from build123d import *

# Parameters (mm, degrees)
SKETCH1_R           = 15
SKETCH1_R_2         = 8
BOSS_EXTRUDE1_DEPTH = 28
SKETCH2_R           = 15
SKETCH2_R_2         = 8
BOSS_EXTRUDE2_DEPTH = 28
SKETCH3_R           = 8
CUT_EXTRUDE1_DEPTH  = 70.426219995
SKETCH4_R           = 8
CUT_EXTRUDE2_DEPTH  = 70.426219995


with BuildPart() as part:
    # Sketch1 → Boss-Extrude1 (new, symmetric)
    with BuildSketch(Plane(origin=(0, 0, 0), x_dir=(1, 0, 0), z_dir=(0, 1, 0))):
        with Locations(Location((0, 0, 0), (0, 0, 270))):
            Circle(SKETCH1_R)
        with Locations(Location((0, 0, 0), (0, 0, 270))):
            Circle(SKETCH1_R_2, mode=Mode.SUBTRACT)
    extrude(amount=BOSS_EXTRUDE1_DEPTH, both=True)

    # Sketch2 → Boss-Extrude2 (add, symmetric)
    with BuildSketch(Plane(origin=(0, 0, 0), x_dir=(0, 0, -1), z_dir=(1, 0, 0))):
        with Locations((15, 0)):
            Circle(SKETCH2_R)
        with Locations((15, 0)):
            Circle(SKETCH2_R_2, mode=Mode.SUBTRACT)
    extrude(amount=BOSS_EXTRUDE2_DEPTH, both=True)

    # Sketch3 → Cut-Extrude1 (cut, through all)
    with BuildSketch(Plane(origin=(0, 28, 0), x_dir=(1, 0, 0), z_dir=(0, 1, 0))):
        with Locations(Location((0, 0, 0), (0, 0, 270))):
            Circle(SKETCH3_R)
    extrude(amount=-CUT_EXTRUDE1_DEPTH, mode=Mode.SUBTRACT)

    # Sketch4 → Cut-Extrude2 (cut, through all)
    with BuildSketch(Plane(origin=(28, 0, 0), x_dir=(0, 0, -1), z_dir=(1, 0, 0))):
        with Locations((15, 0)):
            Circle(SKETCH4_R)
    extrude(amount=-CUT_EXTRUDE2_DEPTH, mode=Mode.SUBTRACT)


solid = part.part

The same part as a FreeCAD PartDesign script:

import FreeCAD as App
import Part
import Sketcher

V = App.Vector
Q = App.Units.Quantity

doc = App.newDocument("Part")
params = doc.addObject("Spreadsheet::Sheet", "Params")
for row, (alias, value) in enumerate([
    ("sketch1_diameter", "30 mm"),
    ("sketch1_diameter2", "16 mm"),
    ("pad1_length", "56 mm"),
    ("sketch2_diameter", "30 mm"),
    ("sketch2_diameter2", "16 mm"),
    ("pad2_length", "56 mm"),
    ("sketch3_diameter", "16 mm"),
    ("sketch4_diameter", "16 mm"),
], start=1):
    params.set(f"A{row}", alias)
    params.set(f"B{row}", "=" + value)
    params.setAlias(f"B{row}", alias)

body = doc.addObject("PartDesign::Body", "Body")

sketch1 = body.newObject("Sketcher::SketchObject", "Sketch")
sketch1.AttachmentSupport = (doc.getObject("XZ_Plane"), [""])
sketch1.MapMode = "FlatFace"
sketch1.addGeometry([
    Part.Circle(V(0, 0, 0), V(0, 0, 1), 15),
    Part.Circle(V(0, 0, 0), V(0, 0, 1), 8),
], False)
sketch1.addConstraint([
    Sketcher.Constraint("Coincident", 0, 3, -1, 1),
    Sketcher.Constraint("Coincident", 1, 3, -1, 1),
    Sketcher.Constraint("Diameter", 0, Q("30 mm")),
    Sketcher.Constraint("Diameter", 1, Q("16 mm")),
])
sketch1.setExpression("Constraints[2]", "Params.sketch1_diameter")
sketch1.setExpression("Constraints[3]", "Params.sketch1_diameter2")
pad1 = body.newObject("PartDesign::Pad", "Pad")
pad1.Profile = sketch1
pad1.setExpression("Length", "Params.pad1_length")
pad1.Midplane = True

sketch2 = body.newObject("Sketcher::SketchObject", "Sketch001")
sketch2.AttachmentSupport = (doc.getObject("YZ_Plane"), [""])
sketch2.MapMode = "FlatFace"
sketch2.addGeometry([
    Part.Circle(V(0, -15, 0), V(0, 0, 1), 15),
    Part.Circle(V(0, -15, 0), V(0, 0, 1), 8),
], False)
sketch2.addConstraint([
    Sketcher.Constraint("Coincident", 1, 3, 0, 3),
    Sketcher.Constraint("PointOnObject", 0, 3, -2),
    Sketcher.Constraint("Diameter", 0, Q("30 mm")),
    Sketcher.Constraint("Diameter", 1, Q("16 mm")),
    Sketcher.Constraint("DistanceY", 0, 3, -1, 1, Q("15 mm")),
])
sketch2.setExpression("Constraints[2]", "Params.sketch2_diameter")
sketch2.setExpression("Constraints[3]", "Params.sketch2_diameter2")
pad2 = body.newObject("PartDesign::Pad", "Pad001")
pad2.Profile = sketch2
pad2.setExpression("Length", "Params.pad2_length")
pad2.Midplane = True

sketch3 = body.newObject("Sketcher::SketchObject", "Sketch002")
sketch3.AttachmentSupport = (doc.getObject("XZ_Plane"), [""])
sketch3.MapMode = "FlatFace"
sketch3.AttachmentOffset = App.Placement(V(0, 0, -28), App.Rotation())
sketch3.addGeometry(Part.Circle(V(0, 0, 0), V(0, 0, 1), 8), False)
sketch3.addConstraint([
    Sketcher.Constraint("Coincident", 0, 3, -1, 1),
    Sketcher.Constraint("Diameter", 0, Q("16 mm")),
])
sketch3.setExpression("Constraints[1]", "Params.sketch3_diameter")
pocket1 = body.newObject("PartDesign::Pocket", "Pocket")
pocket1.Profile = sketch3
pocket1.Type = "ThroughAll"
pocket1.Reversed = True

sketch4 = body.newObject("Sketcher::SketchObject", "Sketch003")
sketch4.AttachmentSupport = (doc.getObject("YZ_Plane"), [""])
sketch4.MapMode = "FlatFace"
sketch4.AttachmentOffset = App.Placement(V(0, 0, 28), App.Rotation())
sketch4.addGeometry(Part.Circle(V(0, -15, 0), V(0, 0, 1), 8), False)
sketch4.addConstraint([
    Sketcher.Constraint("PointOnObject", 0, 3, -2),
    Sketcher.Constraint("Diameter", 0, Q("16 mm")),
    Sketcher.Constraint("DistanceY", 0, 3, -1, 1, Q("15 mm")),
])
sketch4.setExpression("Constraints[1]", "Params.sketch4_diameter")
pocket2 = body.newObject("PartDesign::Pocket", "Pocket001")
pocket2.Profile = sketch4
pocket2.Type = "ThroughAll"

doc.recompute()
